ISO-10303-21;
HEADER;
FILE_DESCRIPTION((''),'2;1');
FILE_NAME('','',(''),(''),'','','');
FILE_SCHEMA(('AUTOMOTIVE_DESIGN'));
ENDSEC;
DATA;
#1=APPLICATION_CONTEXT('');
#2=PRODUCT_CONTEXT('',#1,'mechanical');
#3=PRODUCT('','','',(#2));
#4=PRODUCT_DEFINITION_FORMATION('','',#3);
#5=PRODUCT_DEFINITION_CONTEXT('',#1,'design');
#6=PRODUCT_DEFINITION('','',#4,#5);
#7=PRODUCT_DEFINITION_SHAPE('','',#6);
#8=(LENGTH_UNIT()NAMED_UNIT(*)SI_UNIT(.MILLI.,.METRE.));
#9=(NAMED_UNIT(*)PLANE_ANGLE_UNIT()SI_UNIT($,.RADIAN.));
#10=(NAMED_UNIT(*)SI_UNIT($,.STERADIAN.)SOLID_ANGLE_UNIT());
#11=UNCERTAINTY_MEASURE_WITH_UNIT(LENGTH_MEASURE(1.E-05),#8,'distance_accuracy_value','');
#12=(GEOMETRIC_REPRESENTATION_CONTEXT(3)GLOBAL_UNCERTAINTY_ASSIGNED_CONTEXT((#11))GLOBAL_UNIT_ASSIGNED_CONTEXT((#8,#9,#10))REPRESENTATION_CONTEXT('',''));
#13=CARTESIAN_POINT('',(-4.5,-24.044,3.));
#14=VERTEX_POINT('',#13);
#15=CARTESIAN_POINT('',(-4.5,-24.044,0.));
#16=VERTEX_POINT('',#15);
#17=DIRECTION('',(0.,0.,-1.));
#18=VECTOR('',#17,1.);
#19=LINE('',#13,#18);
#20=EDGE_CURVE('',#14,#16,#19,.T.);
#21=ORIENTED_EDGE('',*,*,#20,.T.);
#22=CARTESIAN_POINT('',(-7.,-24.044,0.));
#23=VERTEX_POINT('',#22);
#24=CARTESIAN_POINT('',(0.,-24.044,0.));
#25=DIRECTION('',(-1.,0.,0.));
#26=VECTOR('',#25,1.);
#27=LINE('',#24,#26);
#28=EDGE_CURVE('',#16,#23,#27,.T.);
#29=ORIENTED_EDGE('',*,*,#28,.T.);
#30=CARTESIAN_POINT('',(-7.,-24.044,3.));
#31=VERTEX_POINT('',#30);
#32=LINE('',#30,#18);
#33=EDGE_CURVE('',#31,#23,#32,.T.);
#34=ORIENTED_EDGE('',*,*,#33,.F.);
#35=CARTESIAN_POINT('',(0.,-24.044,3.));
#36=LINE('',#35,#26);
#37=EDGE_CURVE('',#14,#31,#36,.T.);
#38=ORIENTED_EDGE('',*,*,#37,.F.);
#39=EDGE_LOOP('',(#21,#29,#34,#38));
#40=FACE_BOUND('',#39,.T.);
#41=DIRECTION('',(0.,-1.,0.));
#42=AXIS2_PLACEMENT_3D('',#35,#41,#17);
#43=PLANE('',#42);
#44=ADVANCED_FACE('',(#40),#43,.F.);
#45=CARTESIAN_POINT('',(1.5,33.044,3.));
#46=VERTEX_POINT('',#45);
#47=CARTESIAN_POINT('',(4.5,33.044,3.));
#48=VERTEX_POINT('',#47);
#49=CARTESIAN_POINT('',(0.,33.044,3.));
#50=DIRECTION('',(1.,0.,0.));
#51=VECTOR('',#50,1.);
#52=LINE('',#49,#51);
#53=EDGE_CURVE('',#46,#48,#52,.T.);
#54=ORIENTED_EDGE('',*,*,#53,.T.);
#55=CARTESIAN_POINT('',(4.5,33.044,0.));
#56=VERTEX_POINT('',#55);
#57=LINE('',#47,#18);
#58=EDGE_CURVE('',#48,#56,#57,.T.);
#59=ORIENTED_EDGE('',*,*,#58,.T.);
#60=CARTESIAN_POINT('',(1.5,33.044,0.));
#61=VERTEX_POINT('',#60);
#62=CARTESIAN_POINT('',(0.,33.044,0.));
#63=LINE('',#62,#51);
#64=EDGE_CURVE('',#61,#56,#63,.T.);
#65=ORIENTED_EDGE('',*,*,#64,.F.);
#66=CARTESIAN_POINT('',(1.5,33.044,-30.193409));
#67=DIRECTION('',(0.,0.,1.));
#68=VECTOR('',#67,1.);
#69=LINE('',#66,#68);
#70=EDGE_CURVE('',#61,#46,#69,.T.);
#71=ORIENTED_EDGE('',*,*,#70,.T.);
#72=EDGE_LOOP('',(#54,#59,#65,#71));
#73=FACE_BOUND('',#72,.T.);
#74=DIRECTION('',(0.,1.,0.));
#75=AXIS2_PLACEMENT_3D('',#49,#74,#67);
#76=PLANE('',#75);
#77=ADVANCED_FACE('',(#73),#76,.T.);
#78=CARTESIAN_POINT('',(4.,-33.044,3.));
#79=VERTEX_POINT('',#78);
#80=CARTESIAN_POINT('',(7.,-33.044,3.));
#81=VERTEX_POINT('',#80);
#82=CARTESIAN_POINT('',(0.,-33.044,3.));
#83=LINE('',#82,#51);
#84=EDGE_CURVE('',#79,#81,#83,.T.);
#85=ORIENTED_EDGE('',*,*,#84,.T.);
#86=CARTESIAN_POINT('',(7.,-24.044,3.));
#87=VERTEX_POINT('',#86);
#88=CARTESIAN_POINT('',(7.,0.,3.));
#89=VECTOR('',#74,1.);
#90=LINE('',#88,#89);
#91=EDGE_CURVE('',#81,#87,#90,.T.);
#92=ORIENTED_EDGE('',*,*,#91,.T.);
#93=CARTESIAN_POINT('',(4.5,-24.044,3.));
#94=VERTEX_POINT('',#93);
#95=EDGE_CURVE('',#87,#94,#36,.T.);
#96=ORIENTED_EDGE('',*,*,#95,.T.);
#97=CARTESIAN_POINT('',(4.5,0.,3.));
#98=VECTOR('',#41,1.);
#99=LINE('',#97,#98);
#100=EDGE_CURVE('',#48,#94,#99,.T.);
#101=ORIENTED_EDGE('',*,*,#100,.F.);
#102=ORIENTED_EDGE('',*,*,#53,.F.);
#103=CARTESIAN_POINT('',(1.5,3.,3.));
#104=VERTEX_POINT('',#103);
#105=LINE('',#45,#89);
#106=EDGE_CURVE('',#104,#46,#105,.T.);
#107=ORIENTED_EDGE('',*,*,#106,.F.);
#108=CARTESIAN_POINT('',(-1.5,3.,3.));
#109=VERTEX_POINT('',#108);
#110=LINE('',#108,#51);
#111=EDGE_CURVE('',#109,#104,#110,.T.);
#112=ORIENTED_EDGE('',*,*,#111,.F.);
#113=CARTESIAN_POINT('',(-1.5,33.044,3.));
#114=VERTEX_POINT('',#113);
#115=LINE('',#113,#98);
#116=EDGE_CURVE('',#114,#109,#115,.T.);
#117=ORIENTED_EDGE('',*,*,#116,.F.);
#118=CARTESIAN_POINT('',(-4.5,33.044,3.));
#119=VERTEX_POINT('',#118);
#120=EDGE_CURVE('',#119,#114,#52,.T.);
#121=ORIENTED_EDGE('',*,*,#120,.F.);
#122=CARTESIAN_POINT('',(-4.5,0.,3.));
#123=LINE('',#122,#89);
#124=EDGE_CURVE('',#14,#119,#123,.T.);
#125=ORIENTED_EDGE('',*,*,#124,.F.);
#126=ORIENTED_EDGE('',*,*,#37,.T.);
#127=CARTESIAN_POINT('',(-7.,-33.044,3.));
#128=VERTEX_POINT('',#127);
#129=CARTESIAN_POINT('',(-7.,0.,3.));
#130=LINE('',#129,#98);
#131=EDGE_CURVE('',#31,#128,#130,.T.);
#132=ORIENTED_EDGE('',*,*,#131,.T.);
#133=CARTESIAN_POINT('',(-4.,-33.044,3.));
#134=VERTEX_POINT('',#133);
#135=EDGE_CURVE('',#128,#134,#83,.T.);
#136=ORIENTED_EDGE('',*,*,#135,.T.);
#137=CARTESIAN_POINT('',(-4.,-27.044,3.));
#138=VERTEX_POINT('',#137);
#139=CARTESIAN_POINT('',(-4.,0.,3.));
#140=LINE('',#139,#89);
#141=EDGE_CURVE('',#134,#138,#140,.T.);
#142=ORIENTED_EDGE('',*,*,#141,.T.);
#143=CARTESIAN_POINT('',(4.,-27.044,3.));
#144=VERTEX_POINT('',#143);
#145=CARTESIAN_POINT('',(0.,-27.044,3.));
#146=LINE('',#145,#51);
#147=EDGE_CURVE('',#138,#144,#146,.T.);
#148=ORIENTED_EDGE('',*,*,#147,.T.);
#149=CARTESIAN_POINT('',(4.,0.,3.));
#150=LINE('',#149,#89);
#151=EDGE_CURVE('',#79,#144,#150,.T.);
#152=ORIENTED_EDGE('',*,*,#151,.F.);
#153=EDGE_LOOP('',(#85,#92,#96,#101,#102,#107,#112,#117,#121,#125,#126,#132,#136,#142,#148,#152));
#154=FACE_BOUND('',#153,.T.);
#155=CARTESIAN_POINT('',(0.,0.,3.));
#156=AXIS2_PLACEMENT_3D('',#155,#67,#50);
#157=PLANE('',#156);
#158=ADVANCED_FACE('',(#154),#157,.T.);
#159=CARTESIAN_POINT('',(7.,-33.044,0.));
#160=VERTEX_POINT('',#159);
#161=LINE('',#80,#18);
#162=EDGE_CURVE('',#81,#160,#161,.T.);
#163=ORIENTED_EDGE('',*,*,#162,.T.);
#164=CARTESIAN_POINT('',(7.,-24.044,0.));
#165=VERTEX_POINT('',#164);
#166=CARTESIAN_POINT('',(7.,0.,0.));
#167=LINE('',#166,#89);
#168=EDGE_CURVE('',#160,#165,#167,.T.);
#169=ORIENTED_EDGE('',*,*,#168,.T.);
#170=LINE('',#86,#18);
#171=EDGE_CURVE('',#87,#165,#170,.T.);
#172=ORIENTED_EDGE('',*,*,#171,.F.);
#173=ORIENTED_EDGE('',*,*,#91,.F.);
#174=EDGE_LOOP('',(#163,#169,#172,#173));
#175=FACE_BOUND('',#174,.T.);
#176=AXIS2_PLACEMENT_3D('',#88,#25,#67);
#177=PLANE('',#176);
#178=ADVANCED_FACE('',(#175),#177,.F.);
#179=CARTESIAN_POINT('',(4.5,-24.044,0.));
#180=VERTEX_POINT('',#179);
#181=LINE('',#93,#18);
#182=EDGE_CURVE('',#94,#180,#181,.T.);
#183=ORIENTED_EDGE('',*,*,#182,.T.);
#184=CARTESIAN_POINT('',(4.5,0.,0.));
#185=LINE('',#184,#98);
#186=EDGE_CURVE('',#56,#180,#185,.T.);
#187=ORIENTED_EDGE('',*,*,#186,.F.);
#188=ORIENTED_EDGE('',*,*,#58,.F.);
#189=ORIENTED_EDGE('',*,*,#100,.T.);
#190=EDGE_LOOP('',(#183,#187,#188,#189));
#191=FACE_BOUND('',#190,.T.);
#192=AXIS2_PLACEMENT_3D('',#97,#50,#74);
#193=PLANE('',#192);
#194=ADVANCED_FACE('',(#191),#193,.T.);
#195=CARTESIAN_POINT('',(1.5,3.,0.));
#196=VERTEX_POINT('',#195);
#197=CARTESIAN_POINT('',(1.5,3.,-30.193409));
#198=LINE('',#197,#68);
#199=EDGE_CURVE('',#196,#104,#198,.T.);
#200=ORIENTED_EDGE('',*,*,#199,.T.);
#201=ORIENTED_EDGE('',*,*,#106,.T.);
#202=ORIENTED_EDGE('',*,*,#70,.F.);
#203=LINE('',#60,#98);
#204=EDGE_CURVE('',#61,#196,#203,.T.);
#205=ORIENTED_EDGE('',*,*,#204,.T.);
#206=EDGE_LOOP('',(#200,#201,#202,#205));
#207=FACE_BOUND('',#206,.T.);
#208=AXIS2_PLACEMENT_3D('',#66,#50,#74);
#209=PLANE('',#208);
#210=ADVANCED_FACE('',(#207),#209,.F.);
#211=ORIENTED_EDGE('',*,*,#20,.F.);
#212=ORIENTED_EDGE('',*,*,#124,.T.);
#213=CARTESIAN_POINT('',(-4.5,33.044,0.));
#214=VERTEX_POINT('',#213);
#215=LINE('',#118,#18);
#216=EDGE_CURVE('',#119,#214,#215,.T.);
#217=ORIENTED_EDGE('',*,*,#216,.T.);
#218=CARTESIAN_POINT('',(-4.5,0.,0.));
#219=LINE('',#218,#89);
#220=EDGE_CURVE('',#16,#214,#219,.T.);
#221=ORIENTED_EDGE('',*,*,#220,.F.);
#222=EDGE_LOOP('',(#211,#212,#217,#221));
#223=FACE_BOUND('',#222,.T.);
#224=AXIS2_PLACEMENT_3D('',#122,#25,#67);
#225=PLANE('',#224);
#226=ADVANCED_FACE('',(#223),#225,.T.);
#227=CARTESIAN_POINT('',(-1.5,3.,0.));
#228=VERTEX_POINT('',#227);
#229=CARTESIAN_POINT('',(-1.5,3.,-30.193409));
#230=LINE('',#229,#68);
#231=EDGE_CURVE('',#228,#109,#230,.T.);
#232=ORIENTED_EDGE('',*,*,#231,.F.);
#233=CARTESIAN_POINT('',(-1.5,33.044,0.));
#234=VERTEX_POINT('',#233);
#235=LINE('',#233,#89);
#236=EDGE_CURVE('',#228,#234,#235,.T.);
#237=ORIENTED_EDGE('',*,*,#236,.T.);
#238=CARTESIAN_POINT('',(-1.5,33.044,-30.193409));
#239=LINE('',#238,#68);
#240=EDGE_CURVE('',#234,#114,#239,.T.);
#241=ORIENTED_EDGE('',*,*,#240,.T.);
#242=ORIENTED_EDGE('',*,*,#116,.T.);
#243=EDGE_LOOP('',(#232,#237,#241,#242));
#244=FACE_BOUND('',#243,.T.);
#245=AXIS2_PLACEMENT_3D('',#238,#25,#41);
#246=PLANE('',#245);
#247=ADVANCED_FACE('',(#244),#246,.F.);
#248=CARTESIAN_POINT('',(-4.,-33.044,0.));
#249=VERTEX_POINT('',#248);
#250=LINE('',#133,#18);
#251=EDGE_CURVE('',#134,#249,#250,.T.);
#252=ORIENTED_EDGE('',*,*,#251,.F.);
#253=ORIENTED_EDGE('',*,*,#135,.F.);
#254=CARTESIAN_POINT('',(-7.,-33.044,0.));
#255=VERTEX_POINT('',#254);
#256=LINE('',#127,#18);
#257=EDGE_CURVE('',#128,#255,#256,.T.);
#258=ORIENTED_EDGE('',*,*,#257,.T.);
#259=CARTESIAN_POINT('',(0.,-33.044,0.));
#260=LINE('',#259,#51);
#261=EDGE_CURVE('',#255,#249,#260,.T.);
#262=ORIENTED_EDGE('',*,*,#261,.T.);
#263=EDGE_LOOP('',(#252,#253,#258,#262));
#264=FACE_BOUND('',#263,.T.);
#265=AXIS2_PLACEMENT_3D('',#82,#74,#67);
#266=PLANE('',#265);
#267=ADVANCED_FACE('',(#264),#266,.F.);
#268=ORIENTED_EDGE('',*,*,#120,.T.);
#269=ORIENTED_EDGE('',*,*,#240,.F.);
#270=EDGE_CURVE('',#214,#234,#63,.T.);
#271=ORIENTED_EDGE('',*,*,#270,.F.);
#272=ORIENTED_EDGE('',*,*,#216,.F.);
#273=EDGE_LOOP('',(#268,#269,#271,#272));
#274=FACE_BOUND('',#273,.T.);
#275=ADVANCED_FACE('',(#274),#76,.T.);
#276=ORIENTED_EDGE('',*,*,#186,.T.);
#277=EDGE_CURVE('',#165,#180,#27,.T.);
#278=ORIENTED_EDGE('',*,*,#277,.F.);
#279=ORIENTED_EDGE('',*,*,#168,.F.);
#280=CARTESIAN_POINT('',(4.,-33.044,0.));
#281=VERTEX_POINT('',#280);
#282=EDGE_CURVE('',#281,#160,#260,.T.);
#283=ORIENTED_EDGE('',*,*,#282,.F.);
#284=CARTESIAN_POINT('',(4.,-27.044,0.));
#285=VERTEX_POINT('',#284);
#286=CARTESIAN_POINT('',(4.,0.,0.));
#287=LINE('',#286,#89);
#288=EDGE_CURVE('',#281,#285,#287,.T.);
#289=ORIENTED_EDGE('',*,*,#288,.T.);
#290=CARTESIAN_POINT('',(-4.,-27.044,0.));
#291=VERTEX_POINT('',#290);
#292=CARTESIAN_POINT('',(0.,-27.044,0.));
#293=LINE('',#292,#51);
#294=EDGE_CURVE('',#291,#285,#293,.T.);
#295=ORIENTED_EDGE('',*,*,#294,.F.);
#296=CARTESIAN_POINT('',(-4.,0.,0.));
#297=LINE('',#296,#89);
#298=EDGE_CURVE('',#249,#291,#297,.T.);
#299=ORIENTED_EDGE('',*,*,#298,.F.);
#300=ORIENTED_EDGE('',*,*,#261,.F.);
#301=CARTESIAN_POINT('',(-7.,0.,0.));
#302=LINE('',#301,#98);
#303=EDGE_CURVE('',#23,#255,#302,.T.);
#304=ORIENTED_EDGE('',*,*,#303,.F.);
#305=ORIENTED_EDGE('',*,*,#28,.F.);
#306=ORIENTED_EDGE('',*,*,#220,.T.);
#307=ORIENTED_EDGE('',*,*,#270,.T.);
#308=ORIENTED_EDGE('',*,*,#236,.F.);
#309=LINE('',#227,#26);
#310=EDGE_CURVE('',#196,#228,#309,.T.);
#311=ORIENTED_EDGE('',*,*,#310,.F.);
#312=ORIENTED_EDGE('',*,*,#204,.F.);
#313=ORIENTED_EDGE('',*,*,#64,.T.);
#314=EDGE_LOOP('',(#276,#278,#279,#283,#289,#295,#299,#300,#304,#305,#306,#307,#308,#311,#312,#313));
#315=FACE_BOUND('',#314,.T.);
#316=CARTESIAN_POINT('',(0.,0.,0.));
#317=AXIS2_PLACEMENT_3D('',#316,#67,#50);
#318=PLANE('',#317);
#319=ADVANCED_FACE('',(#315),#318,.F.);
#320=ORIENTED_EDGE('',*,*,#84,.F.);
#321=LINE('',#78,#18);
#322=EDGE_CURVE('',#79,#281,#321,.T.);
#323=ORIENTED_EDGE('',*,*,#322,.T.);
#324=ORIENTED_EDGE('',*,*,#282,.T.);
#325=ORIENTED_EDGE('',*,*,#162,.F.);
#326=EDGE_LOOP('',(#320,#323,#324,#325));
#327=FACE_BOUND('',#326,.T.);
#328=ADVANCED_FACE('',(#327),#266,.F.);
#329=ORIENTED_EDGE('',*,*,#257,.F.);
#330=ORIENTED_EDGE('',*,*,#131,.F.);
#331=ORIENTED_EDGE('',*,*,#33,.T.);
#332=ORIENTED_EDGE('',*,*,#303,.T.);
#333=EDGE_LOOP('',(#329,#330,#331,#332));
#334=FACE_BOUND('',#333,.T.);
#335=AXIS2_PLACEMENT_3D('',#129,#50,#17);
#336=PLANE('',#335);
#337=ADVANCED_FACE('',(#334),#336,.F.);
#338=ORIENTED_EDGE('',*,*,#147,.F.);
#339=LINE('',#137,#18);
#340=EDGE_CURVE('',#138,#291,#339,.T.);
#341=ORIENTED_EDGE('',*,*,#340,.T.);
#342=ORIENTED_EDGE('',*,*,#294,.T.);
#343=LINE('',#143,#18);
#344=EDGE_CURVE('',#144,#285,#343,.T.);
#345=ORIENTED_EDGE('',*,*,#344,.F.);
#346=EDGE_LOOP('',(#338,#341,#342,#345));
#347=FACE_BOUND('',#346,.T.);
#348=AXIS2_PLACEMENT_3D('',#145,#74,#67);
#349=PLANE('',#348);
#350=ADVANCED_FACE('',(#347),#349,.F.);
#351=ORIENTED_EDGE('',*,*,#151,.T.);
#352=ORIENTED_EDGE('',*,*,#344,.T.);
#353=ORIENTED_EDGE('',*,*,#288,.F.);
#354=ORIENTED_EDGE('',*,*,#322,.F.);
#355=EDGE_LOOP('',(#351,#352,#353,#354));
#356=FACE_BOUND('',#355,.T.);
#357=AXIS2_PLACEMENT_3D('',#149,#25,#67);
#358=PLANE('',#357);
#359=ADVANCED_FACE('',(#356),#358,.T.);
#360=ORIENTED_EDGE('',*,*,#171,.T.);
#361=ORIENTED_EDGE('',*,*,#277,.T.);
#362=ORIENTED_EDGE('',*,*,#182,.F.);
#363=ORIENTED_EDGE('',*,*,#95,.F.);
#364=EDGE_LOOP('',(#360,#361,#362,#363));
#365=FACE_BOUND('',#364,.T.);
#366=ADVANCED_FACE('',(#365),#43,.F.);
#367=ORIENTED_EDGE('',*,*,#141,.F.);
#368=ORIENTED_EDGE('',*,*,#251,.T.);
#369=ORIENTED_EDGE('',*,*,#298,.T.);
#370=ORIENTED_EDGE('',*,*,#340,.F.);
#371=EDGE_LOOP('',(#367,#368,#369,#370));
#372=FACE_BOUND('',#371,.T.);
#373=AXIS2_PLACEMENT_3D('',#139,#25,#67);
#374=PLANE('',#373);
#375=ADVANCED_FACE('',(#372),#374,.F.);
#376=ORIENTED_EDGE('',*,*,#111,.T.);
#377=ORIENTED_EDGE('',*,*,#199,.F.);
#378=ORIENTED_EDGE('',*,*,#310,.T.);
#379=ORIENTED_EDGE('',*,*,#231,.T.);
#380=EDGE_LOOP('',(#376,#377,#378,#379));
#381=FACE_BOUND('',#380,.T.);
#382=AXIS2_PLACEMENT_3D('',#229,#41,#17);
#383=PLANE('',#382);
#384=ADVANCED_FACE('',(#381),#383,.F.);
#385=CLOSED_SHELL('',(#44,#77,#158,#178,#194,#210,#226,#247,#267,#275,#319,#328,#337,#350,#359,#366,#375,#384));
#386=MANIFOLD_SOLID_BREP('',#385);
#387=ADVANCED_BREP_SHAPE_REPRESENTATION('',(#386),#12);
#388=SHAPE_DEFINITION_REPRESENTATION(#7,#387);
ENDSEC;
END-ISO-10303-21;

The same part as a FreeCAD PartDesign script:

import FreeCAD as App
import Part
import Sketcher

V = App.Vector
Q = App.Units.Quantity


def add_polygon(sketch, points):
    """Adds a closed chain of lines whose ends are joined by coincident constraints."""
    first, n = sketch.GeometryCount, len(points)
    for a, b in zip(points, points[1:] + points[:1]):
        sketch.addGeometry(Part.LineSegment(App.Vector(*a, 0), App.Vector(*b, 0)), False)
    for i in range(n):
        sketch.addConstraint(Sketcher.Constraint("Coincident", first + i, 2, first + (i + 1) % n, 1))

doc = App.newDocument("Part")
params = doc.addObject("Spreadsheet::Sheet", "Params")
for row, (alias, value) in enumerate([
    ("sketch1_width", "9 mm"),
    ("sketch1_width2", "3 mm"),
    ("sketch1_width3", "8 mm"),
    ("sketch1_height", "6 mm"),
    ("pad1_length", "3 mm"),
    ("sketch2_width", "3 mm"),
    ("pocket1_length", "3 mm"),
], start=1):
    params.set(f"A{row}", alias)
    params.set(f"B{row}", "=" + value)
    params.setAlias(f"B{row}", alias)

body = doc.addObject("PartDesign::Body", "Body")

# Sketch on XY plane
sketch1 = body.newObject("Sketcher::SketchObject", "Sketch")
sketch1.AttachmentSupport = (doc.getObject("XY_Plane"), [""])
sketch1.MapMode = "FlatFace"
add_polygon(sketch1, [(4.5, 33), (-4.5, 33), (-4.5, -24), (-7, -24), (-7, -33), (-4, -33), (-4, -27), (4, -27), (4, -33), (7, -33), (7, -24), (4.5, -24)])  # lines 0-11
sketch1.addConstraint([
    Sketcher.Constraint("Horizontal", 0),
    Sketcher.Constraint("Vertical", 1),
    Sketcher.Constraint("Horizontal", 2),
    Sketcher.Constraint("Vertical", 3),
    Sketcher.Constraint("Horizontal", 4),
    Sketcher.Constraint("Vertical", 5),
    Sketcher.Constraint("Horizontal", 6),
    Sketcher.Constraint("Vertical", 7),
    Sketcher.Constraint("Horizontal", 8),
    Sketcher.Constraint("Vertical", 9),
    Sketcher.Constraint("Horizontal", 10),
    Sketcher.Constraint("Vertical", 11),
    Sketcher.Constraint("Symmetric", 4, 2, 7, 2, -2),
    Sketcher.Constraint("Symmetric", 2, 2, 9, 2, -2),
    Sketcher.Constraint("Equal", 2, 10),
    Sketcher.Constraint("Equal", 0, 3),
    Sketcher.Constraint("DistanceX", 0, 2, 0, 1, Q("9 mm")),
    Sketcher.Constraint("DistanceX", 4, 1, 4, 2, Q("3 mm")),
    Sketcher.Constraint("DistanceX", 6, 1, 6, 2, Q("8 mm")),
    Sketcher.Constraint("DistanceY", 5, 1, 5, 2, Q("6 mm")),
    Sketcher.Constraint("DistanceY", 1, 2, 1, 1, Q("57.088 mm")),
    Sketcher.Constraint("DistanceY", -1, 1, 0, 2, Q("33.044 mm")),
])
sketch1.setExpression("Constraints[28]", "Params.sketch1_width")
sketch1.setExpression("Constraints[29]", "Params.sketch1_width2")
sketch1.setExpression("Constraints[30]", "Params.sketch1_width3")
sketch1.setExpression("Constraints[31]", "Params.sketch1_height")
pad1 = body.newObject("PartDesign::Pad", "Pad")
pad1.Profile = sketch1
pad1.setExpression("Length", "Params.pad1_length")

# Sketch on XY plane
sketch2 = body.newObject("Sketcher::SketchObject", "Sketch001")
sketch2.AttachmentSupport = (doc.getObject("XY_Plane"), [""])
sketch2.MapMode = "FlatFace"
sketch2.AttachmentOffset = App.Placement(V(0, 0, 3), App.Rotation())
add_polygon(sketch2, [(-1.5, 33), (-1.5, 3), (1.5, 3), (1.5, 33)])  # lines 0-3
sketch2.addConstraint([
    Sketcher.Constraint("Vertical", 0),
    Sketcher.Constraint("Horizontal", 1),
    Sketcher.Constraint("Vertical", 2),
    Sketcher.Constraint("Horizontal", 3),
    Sketcher.Constraint("DistanceX", 1, 1, 1, 2, Q("3 mm")),
    Sketcher.Constraint("DistanceY", -1, 1, 0, 2, Q("3 mm")),
    Sketcher.Constraint("DistanceX", 0, 2, -1, 1, Q("1.5 mm")),
    Sketcher.Constraint("DistanceY", 0, 2, 0, 1, Q("30.044 mm")),
])
sketch2.setExpression("Constraints[8]", "Params.sketch2_width")
pocket1 = body.newObject("PartDesign::Pocket", "Pocket")
pocket1.Profile = sketch2
pocket1.setExpression("Length", "Params.pocket1_length")

doc.recompute()
